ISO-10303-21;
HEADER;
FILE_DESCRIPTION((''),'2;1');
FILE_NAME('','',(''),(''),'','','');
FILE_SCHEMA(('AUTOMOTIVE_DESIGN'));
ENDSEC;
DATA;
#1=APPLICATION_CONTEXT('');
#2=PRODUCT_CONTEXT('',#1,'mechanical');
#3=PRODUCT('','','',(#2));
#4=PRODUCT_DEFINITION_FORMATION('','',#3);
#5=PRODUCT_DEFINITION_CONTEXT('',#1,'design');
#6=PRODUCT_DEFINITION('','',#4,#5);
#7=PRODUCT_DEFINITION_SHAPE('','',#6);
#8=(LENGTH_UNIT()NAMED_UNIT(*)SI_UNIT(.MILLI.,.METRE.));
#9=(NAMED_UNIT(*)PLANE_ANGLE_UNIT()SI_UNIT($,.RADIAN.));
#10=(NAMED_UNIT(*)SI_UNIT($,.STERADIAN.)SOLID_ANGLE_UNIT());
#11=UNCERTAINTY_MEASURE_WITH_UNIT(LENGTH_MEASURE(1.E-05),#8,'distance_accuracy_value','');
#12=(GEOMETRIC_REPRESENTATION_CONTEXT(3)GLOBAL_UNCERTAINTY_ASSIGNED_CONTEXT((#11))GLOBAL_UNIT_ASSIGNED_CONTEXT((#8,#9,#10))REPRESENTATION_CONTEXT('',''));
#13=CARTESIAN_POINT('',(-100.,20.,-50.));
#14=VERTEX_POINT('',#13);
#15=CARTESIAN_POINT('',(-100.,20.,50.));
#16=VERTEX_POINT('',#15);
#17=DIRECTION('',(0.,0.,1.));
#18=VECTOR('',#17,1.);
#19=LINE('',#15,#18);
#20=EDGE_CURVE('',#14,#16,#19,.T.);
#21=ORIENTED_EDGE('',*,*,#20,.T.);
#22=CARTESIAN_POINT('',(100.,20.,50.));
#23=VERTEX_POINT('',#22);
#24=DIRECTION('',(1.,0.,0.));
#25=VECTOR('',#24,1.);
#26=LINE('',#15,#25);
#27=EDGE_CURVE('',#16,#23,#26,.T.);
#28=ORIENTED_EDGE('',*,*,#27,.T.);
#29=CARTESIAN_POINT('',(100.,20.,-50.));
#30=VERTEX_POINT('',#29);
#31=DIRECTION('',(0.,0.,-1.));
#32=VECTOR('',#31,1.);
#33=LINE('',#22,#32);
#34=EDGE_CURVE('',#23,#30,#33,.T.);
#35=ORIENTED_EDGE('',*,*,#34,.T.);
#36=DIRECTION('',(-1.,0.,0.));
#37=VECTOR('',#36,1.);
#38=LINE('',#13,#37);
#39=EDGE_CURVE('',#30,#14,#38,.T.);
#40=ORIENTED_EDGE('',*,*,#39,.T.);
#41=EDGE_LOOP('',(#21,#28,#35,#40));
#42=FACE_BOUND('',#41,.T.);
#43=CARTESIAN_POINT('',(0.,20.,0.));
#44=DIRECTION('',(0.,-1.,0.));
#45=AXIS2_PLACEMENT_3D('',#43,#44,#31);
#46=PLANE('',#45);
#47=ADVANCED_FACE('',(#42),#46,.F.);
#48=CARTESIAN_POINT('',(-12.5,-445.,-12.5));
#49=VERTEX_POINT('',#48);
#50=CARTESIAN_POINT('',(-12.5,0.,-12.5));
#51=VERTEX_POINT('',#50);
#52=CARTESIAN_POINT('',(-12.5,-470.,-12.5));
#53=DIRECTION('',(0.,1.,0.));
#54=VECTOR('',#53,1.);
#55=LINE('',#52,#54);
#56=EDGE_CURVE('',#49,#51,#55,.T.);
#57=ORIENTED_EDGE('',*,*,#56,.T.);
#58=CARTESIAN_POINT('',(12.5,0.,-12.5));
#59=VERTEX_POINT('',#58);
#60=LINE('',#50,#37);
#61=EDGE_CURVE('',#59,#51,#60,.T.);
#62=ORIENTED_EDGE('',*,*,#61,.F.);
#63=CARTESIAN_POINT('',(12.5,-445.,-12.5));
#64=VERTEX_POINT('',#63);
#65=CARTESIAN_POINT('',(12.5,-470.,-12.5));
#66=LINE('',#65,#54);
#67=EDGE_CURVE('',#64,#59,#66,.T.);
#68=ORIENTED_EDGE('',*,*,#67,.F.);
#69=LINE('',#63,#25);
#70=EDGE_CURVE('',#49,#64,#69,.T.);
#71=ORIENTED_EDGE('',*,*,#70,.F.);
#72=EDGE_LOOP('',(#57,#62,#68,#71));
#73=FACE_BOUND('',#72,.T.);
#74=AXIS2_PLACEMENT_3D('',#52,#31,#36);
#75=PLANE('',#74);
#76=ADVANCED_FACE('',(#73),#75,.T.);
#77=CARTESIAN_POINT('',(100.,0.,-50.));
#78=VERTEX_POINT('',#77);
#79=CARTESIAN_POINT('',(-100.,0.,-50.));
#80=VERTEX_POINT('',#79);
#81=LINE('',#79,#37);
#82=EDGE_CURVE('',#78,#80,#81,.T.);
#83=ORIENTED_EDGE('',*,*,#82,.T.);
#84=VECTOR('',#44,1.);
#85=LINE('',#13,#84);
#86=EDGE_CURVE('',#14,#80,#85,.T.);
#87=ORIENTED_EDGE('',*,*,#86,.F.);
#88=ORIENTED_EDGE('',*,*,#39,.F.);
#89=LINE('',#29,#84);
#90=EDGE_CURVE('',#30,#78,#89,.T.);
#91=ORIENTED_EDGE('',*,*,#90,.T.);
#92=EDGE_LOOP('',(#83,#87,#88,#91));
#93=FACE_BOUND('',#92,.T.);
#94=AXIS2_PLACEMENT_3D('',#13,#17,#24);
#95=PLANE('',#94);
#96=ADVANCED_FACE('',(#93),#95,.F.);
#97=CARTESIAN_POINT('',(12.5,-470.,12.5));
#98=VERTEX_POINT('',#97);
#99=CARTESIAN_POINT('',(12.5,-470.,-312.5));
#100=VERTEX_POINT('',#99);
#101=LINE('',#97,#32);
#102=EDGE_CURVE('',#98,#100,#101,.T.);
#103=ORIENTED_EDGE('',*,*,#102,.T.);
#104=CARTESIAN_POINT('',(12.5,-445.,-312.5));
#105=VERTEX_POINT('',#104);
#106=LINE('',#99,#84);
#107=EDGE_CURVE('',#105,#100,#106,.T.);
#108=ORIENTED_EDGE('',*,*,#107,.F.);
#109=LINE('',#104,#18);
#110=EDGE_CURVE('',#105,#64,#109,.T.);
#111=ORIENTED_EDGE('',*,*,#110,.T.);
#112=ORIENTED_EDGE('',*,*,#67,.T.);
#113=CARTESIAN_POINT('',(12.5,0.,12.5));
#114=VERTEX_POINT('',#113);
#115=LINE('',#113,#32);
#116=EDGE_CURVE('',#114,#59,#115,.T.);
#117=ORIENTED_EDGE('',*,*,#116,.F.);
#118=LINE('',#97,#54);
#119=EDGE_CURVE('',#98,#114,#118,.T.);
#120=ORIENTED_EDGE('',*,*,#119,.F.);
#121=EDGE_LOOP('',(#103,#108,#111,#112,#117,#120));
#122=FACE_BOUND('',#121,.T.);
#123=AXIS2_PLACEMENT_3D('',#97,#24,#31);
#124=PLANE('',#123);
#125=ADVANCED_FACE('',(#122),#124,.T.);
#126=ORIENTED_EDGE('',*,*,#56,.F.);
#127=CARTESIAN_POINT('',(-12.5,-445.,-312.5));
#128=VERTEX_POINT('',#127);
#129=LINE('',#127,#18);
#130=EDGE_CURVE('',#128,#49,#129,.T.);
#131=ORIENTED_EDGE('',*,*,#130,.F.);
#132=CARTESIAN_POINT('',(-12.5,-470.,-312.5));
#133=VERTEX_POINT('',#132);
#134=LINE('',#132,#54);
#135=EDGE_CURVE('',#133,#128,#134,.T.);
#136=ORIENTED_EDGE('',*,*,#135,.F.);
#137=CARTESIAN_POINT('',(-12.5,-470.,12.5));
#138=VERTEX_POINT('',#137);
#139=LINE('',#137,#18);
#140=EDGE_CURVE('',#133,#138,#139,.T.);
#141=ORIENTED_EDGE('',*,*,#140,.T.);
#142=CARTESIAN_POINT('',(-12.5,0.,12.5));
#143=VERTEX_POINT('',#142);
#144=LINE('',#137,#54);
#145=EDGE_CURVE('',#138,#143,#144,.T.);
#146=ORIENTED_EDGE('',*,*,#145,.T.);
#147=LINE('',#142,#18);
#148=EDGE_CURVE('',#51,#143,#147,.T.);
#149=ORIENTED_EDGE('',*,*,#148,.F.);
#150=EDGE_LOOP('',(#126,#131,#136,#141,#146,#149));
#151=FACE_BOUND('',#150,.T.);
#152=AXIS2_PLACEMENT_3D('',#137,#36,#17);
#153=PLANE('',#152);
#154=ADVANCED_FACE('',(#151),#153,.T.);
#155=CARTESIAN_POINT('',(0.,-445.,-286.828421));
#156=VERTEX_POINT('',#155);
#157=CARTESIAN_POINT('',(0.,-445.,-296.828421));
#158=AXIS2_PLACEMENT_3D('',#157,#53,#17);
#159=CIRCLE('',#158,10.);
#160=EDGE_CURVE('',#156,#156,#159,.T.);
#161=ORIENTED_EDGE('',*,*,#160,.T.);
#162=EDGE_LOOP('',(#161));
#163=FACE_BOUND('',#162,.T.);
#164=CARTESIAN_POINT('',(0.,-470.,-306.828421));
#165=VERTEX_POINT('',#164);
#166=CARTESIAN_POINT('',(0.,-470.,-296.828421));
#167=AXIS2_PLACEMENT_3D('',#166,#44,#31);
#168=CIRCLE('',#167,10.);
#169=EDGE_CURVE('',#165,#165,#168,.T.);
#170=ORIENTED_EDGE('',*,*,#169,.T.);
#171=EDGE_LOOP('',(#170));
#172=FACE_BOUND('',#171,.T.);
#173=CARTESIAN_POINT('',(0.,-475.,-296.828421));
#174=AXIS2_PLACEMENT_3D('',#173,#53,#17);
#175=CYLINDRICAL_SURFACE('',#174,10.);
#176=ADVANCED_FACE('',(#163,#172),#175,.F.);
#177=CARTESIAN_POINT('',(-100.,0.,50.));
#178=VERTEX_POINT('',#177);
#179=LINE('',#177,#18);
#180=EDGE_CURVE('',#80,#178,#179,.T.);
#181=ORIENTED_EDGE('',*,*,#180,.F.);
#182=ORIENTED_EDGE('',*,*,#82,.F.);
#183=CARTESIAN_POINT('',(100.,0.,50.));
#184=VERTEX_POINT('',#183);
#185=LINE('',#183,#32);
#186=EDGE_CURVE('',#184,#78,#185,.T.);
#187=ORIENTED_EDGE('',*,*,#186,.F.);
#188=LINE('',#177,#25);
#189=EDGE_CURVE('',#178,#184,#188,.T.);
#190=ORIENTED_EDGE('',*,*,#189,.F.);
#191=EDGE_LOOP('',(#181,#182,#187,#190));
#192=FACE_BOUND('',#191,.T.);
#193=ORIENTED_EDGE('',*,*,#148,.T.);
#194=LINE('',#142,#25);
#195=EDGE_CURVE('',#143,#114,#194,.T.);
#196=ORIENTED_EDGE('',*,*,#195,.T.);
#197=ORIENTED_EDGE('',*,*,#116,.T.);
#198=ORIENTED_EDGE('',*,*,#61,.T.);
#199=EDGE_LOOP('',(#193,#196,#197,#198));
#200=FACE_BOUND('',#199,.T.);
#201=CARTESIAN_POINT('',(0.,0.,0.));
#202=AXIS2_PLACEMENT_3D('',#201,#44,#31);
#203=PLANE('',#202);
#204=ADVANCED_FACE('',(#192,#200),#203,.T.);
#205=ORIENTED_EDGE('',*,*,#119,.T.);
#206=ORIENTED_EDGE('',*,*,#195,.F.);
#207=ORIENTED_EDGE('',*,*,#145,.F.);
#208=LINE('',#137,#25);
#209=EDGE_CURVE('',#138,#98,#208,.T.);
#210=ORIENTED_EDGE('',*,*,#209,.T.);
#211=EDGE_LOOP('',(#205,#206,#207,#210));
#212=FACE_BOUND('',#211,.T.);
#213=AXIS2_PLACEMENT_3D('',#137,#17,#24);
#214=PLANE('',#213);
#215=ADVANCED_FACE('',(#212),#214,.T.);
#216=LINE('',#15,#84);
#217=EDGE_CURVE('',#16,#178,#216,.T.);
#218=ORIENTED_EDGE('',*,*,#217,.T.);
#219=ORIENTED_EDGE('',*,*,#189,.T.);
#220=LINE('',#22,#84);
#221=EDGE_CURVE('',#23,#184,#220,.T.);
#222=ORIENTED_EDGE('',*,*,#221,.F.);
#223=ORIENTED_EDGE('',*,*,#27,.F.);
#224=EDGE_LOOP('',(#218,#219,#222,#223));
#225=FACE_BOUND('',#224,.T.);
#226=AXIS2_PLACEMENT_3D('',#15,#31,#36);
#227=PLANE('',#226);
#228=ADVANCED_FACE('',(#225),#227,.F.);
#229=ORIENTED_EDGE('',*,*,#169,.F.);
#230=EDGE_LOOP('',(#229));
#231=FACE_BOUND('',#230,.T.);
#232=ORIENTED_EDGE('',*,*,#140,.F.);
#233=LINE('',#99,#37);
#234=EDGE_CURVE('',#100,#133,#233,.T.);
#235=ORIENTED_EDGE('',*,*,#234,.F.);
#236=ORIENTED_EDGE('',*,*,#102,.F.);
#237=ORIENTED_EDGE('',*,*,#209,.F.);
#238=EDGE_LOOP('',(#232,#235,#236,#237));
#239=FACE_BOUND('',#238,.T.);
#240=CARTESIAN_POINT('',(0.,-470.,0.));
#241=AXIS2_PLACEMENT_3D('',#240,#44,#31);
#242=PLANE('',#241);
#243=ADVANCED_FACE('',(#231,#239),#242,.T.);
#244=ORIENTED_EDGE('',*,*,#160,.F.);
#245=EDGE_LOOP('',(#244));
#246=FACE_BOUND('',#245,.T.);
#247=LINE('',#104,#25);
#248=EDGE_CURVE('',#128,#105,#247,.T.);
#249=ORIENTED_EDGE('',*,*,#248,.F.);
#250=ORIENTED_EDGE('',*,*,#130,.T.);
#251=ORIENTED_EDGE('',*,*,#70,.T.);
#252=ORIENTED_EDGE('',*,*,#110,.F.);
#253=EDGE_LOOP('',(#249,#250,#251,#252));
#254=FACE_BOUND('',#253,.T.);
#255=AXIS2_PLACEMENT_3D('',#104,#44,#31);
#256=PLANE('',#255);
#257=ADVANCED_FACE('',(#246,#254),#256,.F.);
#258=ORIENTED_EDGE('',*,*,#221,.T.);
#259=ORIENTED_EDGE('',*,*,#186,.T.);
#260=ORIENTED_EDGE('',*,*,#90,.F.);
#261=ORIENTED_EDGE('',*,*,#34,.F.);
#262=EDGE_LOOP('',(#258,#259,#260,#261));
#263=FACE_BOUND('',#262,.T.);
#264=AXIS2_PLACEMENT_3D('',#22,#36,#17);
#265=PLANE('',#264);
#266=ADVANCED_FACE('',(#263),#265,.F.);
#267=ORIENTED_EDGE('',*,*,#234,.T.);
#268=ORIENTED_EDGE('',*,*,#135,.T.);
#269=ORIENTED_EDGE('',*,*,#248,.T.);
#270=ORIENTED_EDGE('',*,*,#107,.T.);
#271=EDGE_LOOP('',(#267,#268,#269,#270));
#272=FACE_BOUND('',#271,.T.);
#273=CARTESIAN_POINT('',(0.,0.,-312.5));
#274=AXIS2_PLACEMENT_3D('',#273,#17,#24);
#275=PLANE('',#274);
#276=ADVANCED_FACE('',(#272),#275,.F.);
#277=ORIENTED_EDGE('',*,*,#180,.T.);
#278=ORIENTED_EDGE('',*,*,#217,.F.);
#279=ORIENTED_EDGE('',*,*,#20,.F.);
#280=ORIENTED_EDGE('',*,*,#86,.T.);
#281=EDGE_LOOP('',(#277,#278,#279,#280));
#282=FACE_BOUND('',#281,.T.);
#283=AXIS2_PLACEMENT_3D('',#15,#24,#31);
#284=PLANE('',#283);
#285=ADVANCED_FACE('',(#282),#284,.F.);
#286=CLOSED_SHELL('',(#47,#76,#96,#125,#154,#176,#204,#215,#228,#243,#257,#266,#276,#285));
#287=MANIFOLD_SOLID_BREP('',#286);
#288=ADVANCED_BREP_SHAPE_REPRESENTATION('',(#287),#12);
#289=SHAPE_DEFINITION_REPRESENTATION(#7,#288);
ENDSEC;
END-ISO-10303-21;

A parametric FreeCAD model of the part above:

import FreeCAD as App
import Part
import Sketcher

V = App.Vector

doc = App.newDocument("Part")
body = doc.addObject("PartDesign::Body", "Body")

# Sketch on XZ plane
sketch1 = body.newObject("Sketcher::SketchObject", "Sketch")
sketch1.AttachmentSupport = (doc.getObject("XZ_Plane"), [""])
sketch1.MapMode = "FlatFace"
sketch1.addGeometry(Part.LineSegment(V(-100, -50, 0), V(-100, 50, 0)), False)
sketch1.addGeometry(Part.LineSegment(V(-100, 50, 0), V(100, 50, 0)), False)
sketch1.addGeometry(Part.LineSegment(V(100, 50, 0), V(100, -50, 0)), False)
sketch1.addGeometry(Part.LineSegment(V(100, -50, 0), V(-100, -50, 0)), False)
sketch1.addConstraint(Sketcher.Constraint("Coincident", 0, 2, 1, 1))
sketch1.addConstraint(Sketcher.Constraint("Coincident", 1, 2, 2, 1))
sketch1.addConstraint(Sketcher.Constraint("Coincident", 2, 2, 3, 1))
sketch1.addConstraint(Sketcher.Constraint("Coincident", 3, 2, 0, 1))
sketch1.addConstraint(Sketcher.Constraint("Vertical", 0))
sketch1.addConstraint(Sketcher.Constraint("Horizontal", 1))
sketch1.addConstraint(Sketcher.Constraint("Vertical", 2))
sketch1.addConstraint(Sketcher.Constraint("Horizontal", 3))
sketch1.addConstraint(Sketcher.Constraint("Symmetric", 0, 2, 2, 2, -1, 1))
sketch1.addConstraint(Sketcher.Constraint("DistanceX", 1, 1, 1, 2, 200.0))
sketch1.addConstraint(Sketcher.Constraint("DistanceY", 0, 1, 0, 2, 100.0))
pad1 = body.newObject("PartDesign::Pad", "Pad")
pad1.Profile = sketch1
pad1.Length = 20
pad1.Reversed = True

# Sketch on XZ plane
sketch2 = body.newObject("Sketcher::SketchObject", "Sketch001")
sketch2.AttachmentSupport = (doc.getObject("XZ_Plane"), [""])
sketch2.MapMode = "FlatFace"
sketch2.addGeometry(Part.LineSegment(V(-12, -12, 0), V(-12, 12, 0)), False)
sketch2.addGeometry(Part.LineSegment(V(-12, 12, 0), V(12, 12, 0)), False)
sketch2.addGeometry(Part.LineSegment(V(12, 12, 0), V(12, -12, 0)), False)
sketch2.addGeometry(Part.LineSegment(V(12, -12, 0), V(-12, -12, 0)), False)
sketch2.addConstraint(Sketcher.Constraint("Coincident", 0, 2, 1, 1))
sketch2.addConstraint(Sketcher.Constraint("Coincident", 1, 2, 2, 1))
sketch2.addConstraint(Sketcher.Constraint("Coincident", 2, 2, 3, 1))
sketch2.addConstraint(Sketcher.Constraint("Coincident", 3, 2, 0, 1))
sketch2.addConstraint(Sketcher.Constraint("Vertical", 0))
sketch2.addConstraint(Sketcher.Constraint("Horizontal", 1))
sketch2.addConstraint(Sketcher.Constraint("Vertical", 2))
sketch2.addConstraint(Sketcher.Constraint("Horizontal", 3))
sketch2.addConstraint(Sketcher.Constraint("Symmetric", 0, 2, 2, 2, -1, 1))
sketch2.addConstraint(Sketcher.Constraint("Equal", 3, 0))
sketch2.addConstraint(Sketcher.Constraint("DistanceX", 1, 1, 1, 2, 25.0))
pad2 = body.newObject("PartDesign::Pad", "Pad001")
pad2.Profile = sketch2
pad2.Length = 470

# Sketch on XY plane
sketch3 = body.newObject("Sketcher::SketchObject", "Sketch002")
sketch3.AttachmentSupport = (doc.getObject("XY_Plane"), [""])
sketch3.MapMode = "FlatFace"
sketch3.AttachmentOffset = App.Placement(V(0, 0, -12.5), App.Rotation())
sketch3.addGeometry(Part.LineSegment(V(12, -445, 0), V(12, -470, 0)), False)
sketch3.addGeometry(Part.LineSegment(V(12, -470, 0), V(-12, -470, 0)), False)
sketch3.addGeometry(Part.LineSegment(V(-12, -470, 0), V(-12, -445, 0)), False)
sketch3.addGeometry(Part.LineSegment(V(-12, -445, 0), V(12, -445, 0)), False)
sketch3.addConstraint(Sketcher.Constraint("Coincident", 0, 2, 1, 1))
sketch3.addConstraint(Sketcher.Constraint("Coincident", 1, 2, 2, 1))
sketch3.addConstraint(Sketcher.Constraint("Coincident", 2, 2, 3, 1))
sketch3.addConstraint(Sketcher.Constraint("Coincident", 3, 2, 0, 1))
sketch3.addConstraint(Sketcher.Constraint("Vertical", 0))
sketch3.addConstraint(Sketcher.Constraint("Horizontal", 1))
sketch3.addConstraint(Sketcher.Constraint("Vertical", 2))
sketch3.addConstraint(Sketcher.Constraint("Horizontal", 3))
sketch3.addConstraint(Sketcher.Constraint("Equal", 3, 0))
sketch3.addConstraint(Sketcher.Constraint("DistanceX", 1, 2, 1, 1, 25.0))
sketch3.addConstraint(Sketcher.Constraint("DistanceY", 0, 2, -1, 1, 470.0))
sketch3.addConstraint(Sketcher.Constraint("DistanceX", -1, 1, 0, 2, 12.5))
pad3 = body.newObject("PartDesign::Pad", "Pad002")
pad3.Profile = sketch3
pad3.Length = 300
pad3.Reversed = True

# Sketch on XZ plane
sketch4 = body.newObject("Sketcher::SketchObject", "Sketch003")
sketch4.AttachmentSupport = (doc.getObject("XZ_Plane"), [""])
sketch4.MapMode = "FlatFace"
sketch4.AttachmentOffset = App.Placement(V(0, 0, 445), App.Rotation())
sketch4.addGeometry(Part.Circle(V(0, -297, 0), V(0, 0, 1), 10), False)
sketch4.addConstraint(Sketcher.Constraint("PointOnObject", 0, 3, -2))
sketch4.addConstraint(Sketcher.Constraint("Diameter", 0, 20.0))
sketch4.addConstraint(Sketcher.Constraint("DistanceY", 0, 3, -1, 1, 296.828421))
pocket1 = body.newObject("PartDesign::Pocket", "Pocket")
pocket1.Profile = sketch4
pocket1.Length = 30
pocket1.Reversed = True

doc.recompute()
